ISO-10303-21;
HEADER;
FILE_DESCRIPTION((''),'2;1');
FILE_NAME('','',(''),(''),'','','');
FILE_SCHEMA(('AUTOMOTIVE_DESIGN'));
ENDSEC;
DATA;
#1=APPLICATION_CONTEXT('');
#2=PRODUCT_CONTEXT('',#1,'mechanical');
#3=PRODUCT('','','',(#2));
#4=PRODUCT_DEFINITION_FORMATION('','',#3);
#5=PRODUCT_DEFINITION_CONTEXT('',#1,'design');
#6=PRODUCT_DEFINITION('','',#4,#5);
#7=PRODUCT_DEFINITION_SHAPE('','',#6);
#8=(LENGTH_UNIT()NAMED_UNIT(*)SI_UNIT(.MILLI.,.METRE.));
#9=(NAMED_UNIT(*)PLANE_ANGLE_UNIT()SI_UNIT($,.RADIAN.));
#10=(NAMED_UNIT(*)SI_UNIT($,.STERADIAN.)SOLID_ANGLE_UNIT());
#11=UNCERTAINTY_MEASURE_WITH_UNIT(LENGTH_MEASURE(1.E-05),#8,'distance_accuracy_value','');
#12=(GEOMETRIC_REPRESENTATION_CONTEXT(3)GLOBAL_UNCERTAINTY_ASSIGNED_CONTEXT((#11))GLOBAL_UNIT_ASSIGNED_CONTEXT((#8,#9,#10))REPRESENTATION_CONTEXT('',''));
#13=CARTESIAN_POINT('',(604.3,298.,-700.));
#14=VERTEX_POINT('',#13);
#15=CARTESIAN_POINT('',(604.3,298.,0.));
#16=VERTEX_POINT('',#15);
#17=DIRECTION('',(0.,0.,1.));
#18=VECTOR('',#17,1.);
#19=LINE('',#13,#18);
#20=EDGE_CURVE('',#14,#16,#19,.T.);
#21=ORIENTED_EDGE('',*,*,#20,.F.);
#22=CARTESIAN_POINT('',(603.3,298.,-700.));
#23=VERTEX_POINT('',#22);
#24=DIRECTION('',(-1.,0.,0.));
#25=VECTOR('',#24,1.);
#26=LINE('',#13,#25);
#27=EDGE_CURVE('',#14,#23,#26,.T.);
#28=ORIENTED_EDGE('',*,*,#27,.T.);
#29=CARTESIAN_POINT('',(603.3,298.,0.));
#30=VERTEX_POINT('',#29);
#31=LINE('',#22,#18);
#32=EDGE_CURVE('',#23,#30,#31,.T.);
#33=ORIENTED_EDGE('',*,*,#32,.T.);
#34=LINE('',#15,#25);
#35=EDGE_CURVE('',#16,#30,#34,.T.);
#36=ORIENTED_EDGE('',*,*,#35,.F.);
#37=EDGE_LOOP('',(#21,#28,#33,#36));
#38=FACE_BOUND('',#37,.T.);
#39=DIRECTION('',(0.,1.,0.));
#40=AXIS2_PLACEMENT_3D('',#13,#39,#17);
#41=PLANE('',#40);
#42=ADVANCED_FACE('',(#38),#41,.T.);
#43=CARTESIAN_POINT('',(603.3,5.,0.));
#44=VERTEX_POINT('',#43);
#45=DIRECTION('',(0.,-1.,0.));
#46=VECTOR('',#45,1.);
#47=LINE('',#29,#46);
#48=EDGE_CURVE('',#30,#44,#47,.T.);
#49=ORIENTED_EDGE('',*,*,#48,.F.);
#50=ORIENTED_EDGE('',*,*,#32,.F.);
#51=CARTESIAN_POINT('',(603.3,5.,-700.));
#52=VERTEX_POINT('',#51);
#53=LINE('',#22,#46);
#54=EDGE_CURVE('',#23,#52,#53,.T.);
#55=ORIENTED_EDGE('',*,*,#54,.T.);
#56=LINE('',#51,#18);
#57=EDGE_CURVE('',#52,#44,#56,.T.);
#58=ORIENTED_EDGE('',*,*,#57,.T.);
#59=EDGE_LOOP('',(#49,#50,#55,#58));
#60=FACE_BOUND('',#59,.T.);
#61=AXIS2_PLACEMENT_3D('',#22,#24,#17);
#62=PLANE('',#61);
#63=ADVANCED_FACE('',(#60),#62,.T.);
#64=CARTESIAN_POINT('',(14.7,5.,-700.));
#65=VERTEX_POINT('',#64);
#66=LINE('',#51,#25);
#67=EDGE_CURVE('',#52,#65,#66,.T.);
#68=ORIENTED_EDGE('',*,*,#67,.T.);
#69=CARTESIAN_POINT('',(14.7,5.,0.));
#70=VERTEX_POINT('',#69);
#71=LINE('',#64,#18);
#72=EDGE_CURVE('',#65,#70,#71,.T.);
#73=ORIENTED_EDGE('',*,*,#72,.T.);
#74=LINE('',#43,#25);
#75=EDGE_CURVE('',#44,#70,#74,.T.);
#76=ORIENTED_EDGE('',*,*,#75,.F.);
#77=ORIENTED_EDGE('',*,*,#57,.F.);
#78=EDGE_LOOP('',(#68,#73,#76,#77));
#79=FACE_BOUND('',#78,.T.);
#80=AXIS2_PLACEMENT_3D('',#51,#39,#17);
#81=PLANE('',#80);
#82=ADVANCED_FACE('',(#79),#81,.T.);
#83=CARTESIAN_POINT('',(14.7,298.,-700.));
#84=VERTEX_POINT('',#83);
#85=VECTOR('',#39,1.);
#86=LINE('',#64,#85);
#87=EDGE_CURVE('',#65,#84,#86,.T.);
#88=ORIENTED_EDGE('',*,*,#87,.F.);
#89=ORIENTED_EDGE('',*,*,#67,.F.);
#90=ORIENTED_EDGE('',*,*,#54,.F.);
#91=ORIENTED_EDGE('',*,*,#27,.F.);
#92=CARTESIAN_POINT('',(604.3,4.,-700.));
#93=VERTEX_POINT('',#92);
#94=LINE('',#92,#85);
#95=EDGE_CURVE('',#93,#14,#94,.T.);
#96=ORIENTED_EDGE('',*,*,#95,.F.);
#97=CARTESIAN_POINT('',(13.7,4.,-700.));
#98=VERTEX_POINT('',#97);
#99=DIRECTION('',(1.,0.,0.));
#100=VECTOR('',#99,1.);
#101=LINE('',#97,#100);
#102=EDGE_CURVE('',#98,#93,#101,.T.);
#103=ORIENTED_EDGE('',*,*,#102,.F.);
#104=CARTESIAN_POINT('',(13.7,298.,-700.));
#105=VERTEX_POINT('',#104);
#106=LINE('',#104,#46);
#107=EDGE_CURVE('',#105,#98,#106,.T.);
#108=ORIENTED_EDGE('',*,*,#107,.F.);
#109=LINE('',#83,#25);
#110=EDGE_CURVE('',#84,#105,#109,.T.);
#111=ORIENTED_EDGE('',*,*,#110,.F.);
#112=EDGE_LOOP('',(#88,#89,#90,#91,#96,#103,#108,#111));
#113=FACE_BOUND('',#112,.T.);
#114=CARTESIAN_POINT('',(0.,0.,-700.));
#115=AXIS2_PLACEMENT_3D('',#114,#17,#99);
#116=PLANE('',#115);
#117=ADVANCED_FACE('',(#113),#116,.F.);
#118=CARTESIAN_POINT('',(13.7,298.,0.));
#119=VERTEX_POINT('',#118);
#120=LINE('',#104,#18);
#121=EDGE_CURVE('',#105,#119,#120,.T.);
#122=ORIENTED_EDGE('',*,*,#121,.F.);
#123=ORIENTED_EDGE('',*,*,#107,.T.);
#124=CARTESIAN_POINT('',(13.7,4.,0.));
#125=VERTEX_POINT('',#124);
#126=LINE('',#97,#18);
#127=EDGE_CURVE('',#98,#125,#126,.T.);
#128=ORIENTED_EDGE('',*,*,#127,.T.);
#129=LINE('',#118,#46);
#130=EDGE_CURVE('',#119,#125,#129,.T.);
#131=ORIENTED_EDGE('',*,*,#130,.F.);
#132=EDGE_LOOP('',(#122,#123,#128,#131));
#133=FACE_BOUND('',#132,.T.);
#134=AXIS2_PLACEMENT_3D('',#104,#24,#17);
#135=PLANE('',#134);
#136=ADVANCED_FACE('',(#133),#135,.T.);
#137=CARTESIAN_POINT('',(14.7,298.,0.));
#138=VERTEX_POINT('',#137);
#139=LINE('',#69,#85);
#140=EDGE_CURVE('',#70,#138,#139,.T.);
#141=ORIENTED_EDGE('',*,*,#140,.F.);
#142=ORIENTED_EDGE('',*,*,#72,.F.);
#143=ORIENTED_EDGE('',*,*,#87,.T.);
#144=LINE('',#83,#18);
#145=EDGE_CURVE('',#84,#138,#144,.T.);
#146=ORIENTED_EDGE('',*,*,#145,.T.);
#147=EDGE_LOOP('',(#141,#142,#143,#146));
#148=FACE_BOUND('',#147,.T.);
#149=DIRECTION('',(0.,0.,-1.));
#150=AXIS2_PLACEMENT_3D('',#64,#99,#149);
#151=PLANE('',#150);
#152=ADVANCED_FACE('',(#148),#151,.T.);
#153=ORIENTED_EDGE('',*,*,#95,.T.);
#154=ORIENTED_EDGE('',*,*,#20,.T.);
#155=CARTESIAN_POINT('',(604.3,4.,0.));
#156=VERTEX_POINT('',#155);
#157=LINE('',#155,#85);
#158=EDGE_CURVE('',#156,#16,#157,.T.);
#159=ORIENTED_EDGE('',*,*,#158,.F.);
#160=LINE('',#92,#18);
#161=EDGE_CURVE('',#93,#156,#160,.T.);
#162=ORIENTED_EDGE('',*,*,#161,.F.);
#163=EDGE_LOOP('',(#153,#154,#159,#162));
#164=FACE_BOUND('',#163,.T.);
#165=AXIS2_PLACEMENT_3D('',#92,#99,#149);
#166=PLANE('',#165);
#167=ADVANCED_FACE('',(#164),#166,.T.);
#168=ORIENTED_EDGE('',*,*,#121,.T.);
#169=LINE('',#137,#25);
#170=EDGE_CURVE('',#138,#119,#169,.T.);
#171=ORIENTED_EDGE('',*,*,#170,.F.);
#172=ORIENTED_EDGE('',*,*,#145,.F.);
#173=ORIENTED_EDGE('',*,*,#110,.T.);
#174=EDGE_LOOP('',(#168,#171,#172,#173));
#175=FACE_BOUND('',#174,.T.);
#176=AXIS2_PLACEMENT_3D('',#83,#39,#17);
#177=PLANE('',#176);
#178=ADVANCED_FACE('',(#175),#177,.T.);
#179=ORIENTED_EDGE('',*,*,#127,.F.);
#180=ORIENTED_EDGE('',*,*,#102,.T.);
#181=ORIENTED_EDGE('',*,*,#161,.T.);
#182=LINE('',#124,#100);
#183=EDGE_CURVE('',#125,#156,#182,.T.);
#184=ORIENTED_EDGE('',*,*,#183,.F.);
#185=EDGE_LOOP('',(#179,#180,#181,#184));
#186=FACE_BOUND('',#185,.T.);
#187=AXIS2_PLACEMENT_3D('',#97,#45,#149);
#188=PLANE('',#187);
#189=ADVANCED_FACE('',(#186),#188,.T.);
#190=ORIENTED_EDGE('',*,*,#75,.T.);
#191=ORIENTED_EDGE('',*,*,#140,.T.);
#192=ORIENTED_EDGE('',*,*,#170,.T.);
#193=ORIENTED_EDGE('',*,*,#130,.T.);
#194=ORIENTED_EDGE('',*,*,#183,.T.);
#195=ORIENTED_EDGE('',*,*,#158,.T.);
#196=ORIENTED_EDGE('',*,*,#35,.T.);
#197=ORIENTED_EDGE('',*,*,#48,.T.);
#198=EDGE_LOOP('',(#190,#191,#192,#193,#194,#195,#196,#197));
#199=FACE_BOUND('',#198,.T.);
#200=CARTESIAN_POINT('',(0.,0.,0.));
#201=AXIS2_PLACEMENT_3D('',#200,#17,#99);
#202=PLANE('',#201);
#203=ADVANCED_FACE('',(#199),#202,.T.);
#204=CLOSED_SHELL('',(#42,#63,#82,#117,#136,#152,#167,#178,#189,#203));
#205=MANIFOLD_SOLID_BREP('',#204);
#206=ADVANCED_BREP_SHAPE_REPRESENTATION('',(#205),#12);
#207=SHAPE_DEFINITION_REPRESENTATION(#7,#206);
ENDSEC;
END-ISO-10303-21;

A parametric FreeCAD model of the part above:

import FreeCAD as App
import Part
import Sketcher
Q = App.Units.Quantity


def add_polygon(sketch, points):
    """Adds a closed chain of lines whose ends are joined by coincident constraints."""
    first, n = sketch.GeometryCount, len(points)
    for a, b in zip(points, points[1:] + points[:1]):
        sketch.addGeometry(Part.LineSegment(App.Vector(*a, 0), App.Vector(*b, 0)), False)
    for i in range(n):
        sketch.addConstraint(Sketcher.Constraint("Coincident", first + i, 2, first + (i + 1) % n, 1))

doc = App.newDocument("Part")
body = doc.addObject("PartDesign::Body", "Body")

sketch1 = body.newObject("Sketcher::SketchObject", "Sketch")
sketch1.AttachmentSupport = (doc.getObject("XY_Plane"), [""])
sketch1.MapMode = "FlatFace"
add_polygon(sketch1, [(13.7, 298), (13.7, 4), (604.3, 4), (604.3, 298), (603.3, 298), (603.3, 5), (14.7, 5), (14.7, 298)])
sketch1.addConstraint([
    Sketcher.Constraint("Vertical", 0),
    Sketcher.Constraint("Horizontal", 1),
    Sketcher.Constraint("Vertical", 2),
    Sketcher.Constraint("Horizontal", 3),
    Sketcher.Constraint("Vertical", 4),
    Sketcher.Constraint("Horizontal", 5),
    Sketcher.Constraint("Vertical", 6),
    Sketcher.Constraint("Horizontal", 7),
    Sketcher.Constraint("Horizontal", 3, 2, 6, 2),
    Sketcher.Constraint("Equal", 3, 7),
    Sketcher.Constraint("DistanceX", 3, 2, 3, 1, Q("1 mm")),
    Sketcher.Constraint("DistanceY", 0, 2, 0, 1, Q("294 mm")),
    Sketcher.Constraint("DistanceY", 4, 2, 4, 1, Q("293 mm")),
    Sketcher.Constraint("DistanceX", 1, 1, 1, 2, Q("590.6 mm")),
    Sketcher.Constraint("DistanceY", -1, 1, 0, 2, Q("4 mm")),
    Sketcher.Constraint("DistanceX", -1, 1, 0, 2, Q("13.7 mm")),
])
pad1 = body.newObject("PartDesign::Pad", "Pad")
pad1.Profile = sketch1
pad1.Length = 700
pad1.Reversed = True

doc.recompute()
